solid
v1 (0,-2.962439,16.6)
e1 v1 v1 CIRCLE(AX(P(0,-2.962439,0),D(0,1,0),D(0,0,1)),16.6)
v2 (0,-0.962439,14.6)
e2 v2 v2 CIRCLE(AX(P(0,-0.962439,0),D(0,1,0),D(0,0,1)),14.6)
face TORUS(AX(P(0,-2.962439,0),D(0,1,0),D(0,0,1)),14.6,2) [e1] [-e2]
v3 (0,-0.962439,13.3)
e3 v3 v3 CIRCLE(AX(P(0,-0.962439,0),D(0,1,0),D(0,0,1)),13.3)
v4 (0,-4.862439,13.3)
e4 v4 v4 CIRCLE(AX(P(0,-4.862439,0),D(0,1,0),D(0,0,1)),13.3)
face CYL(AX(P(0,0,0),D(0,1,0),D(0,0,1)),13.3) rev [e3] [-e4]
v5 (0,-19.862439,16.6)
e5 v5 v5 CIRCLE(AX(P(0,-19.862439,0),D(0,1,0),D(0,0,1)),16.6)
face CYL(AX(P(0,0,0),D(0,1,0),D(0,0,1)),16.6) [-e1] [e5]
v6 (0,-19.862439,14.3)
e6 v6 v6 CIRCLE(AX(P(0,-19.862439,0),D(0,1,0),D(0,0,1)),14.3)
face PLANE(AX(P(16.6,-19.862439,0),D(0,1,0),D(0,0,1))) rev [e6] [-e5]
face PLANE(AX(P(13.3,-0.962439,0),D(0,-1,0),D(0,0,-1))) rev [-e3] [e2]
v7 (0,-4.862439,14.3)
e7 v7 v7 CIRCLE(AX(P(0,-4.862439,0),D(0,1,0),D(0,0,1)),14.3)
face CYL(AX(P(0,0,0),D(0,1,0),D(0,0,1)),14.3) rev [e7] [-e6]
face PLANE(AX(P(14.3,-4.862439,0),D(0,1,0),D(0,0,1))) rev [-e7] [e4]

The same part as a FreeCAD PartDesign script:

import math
import FreeCAD as App
import Part
import Sketcher

doc = App.newDocument("Part")
body = doc.addObject("PartDesign::Body", "Body")

sketch1 = body.newObject("Sketcher::SketchObject", "Sketch")
sketch1.AttachmentSupport = (doc.getObject("XY_Plane"), [""])
sketch1.MapMode = "FlatFace"
sketch1.addGeometry([
    Part.LineSegment(App.Vector(14.3, -4.9, 0), App.Vector(14.3, -19.9, 0)),
    Part.LineSegment(App.Vector(14.3, -19.9, 0), App.Vector(16.6, -19.9, 0)),
    Part.LineSegment(App.Vector(16.6, -19.9, 0), App.Vector(16.6, -3, 0)),
    Part.ArcOfCircle(Part.Circle(App.Vector(14.6, -3, 0), App.Vector(0, 0, 1), 2), math.radians(0), math.radians(90)),
    Part.LineSegment(App.Vector(14.6, -1, 0), App.Vector(13.3, -1, 0)),
    Part.LineSegment(App.Vector(13.3, -1, 0), App.Vector(13.3, -4.9, 0)),
    Part.LineSegment(App.Vector(13.3, -4.9, 0), App.Vector(14.3, -4.9, 0)),
], False)
sketch1.addConstraint([
    Sketcher.Constraint("Coincident", 0, 2, 1, 1),
    Sketcher.Constraint("Coincident", 1, 2, 2, 1),
    Sketcher.Constraint("Tangent", 2, 2, 3, 1),
    Sketcher.Constraint("Tangent", 3, 2, 4, 1),
    Sketcher.Constraint("Coincident", 4, 2, 5, 1),
    Sketcher.Constraint("Coincident", 5, 2, 6, 1),
    Sketcher.Constraint("Coincident", 6, 2, 0, 1),
    Sketcher.Constraint("Vertical", 0),
    Sketcher.Constraint("Horizontal", 1),
    Sketcher.Constraint("Vertical", 2),
    Sketcher.Constraint("Horizontal", 4),
    Sketcher.Constraint("Vertical", 5),
    Sketcher.Constraint("Horizontal", 6),
    Sketcher.Constraint("Radius", 3, 2.0),
    Sketcher.Constraint("DistanceX", 6, 1, 6, 2, 1.0),
    Sketcher.Constraint("DistanceY", 0, 2, 0, 1, 15.0),
    Sketcher.Constraint("DistanceX", 1, 1, 1, 2, 2.3),
    Sketcher.Constraint("DistanceY", 2, 1, 2, 2, 16.9),
    Sketcher.Constraint("DistanceX", -1, 1, 3, 3, 14.6),
    Sketcher.Constraint("DistanceY", 3, 3, -1, 1, 2.962439),
])
revolution = body.newObject("PartDesign::Revolution", "Revolution")
revolution.Profile = sketch1
revolution.ReferenceAxis = (sketch1, ["V_Axis"])
revolution.Angle = 360

doc.recompute()
